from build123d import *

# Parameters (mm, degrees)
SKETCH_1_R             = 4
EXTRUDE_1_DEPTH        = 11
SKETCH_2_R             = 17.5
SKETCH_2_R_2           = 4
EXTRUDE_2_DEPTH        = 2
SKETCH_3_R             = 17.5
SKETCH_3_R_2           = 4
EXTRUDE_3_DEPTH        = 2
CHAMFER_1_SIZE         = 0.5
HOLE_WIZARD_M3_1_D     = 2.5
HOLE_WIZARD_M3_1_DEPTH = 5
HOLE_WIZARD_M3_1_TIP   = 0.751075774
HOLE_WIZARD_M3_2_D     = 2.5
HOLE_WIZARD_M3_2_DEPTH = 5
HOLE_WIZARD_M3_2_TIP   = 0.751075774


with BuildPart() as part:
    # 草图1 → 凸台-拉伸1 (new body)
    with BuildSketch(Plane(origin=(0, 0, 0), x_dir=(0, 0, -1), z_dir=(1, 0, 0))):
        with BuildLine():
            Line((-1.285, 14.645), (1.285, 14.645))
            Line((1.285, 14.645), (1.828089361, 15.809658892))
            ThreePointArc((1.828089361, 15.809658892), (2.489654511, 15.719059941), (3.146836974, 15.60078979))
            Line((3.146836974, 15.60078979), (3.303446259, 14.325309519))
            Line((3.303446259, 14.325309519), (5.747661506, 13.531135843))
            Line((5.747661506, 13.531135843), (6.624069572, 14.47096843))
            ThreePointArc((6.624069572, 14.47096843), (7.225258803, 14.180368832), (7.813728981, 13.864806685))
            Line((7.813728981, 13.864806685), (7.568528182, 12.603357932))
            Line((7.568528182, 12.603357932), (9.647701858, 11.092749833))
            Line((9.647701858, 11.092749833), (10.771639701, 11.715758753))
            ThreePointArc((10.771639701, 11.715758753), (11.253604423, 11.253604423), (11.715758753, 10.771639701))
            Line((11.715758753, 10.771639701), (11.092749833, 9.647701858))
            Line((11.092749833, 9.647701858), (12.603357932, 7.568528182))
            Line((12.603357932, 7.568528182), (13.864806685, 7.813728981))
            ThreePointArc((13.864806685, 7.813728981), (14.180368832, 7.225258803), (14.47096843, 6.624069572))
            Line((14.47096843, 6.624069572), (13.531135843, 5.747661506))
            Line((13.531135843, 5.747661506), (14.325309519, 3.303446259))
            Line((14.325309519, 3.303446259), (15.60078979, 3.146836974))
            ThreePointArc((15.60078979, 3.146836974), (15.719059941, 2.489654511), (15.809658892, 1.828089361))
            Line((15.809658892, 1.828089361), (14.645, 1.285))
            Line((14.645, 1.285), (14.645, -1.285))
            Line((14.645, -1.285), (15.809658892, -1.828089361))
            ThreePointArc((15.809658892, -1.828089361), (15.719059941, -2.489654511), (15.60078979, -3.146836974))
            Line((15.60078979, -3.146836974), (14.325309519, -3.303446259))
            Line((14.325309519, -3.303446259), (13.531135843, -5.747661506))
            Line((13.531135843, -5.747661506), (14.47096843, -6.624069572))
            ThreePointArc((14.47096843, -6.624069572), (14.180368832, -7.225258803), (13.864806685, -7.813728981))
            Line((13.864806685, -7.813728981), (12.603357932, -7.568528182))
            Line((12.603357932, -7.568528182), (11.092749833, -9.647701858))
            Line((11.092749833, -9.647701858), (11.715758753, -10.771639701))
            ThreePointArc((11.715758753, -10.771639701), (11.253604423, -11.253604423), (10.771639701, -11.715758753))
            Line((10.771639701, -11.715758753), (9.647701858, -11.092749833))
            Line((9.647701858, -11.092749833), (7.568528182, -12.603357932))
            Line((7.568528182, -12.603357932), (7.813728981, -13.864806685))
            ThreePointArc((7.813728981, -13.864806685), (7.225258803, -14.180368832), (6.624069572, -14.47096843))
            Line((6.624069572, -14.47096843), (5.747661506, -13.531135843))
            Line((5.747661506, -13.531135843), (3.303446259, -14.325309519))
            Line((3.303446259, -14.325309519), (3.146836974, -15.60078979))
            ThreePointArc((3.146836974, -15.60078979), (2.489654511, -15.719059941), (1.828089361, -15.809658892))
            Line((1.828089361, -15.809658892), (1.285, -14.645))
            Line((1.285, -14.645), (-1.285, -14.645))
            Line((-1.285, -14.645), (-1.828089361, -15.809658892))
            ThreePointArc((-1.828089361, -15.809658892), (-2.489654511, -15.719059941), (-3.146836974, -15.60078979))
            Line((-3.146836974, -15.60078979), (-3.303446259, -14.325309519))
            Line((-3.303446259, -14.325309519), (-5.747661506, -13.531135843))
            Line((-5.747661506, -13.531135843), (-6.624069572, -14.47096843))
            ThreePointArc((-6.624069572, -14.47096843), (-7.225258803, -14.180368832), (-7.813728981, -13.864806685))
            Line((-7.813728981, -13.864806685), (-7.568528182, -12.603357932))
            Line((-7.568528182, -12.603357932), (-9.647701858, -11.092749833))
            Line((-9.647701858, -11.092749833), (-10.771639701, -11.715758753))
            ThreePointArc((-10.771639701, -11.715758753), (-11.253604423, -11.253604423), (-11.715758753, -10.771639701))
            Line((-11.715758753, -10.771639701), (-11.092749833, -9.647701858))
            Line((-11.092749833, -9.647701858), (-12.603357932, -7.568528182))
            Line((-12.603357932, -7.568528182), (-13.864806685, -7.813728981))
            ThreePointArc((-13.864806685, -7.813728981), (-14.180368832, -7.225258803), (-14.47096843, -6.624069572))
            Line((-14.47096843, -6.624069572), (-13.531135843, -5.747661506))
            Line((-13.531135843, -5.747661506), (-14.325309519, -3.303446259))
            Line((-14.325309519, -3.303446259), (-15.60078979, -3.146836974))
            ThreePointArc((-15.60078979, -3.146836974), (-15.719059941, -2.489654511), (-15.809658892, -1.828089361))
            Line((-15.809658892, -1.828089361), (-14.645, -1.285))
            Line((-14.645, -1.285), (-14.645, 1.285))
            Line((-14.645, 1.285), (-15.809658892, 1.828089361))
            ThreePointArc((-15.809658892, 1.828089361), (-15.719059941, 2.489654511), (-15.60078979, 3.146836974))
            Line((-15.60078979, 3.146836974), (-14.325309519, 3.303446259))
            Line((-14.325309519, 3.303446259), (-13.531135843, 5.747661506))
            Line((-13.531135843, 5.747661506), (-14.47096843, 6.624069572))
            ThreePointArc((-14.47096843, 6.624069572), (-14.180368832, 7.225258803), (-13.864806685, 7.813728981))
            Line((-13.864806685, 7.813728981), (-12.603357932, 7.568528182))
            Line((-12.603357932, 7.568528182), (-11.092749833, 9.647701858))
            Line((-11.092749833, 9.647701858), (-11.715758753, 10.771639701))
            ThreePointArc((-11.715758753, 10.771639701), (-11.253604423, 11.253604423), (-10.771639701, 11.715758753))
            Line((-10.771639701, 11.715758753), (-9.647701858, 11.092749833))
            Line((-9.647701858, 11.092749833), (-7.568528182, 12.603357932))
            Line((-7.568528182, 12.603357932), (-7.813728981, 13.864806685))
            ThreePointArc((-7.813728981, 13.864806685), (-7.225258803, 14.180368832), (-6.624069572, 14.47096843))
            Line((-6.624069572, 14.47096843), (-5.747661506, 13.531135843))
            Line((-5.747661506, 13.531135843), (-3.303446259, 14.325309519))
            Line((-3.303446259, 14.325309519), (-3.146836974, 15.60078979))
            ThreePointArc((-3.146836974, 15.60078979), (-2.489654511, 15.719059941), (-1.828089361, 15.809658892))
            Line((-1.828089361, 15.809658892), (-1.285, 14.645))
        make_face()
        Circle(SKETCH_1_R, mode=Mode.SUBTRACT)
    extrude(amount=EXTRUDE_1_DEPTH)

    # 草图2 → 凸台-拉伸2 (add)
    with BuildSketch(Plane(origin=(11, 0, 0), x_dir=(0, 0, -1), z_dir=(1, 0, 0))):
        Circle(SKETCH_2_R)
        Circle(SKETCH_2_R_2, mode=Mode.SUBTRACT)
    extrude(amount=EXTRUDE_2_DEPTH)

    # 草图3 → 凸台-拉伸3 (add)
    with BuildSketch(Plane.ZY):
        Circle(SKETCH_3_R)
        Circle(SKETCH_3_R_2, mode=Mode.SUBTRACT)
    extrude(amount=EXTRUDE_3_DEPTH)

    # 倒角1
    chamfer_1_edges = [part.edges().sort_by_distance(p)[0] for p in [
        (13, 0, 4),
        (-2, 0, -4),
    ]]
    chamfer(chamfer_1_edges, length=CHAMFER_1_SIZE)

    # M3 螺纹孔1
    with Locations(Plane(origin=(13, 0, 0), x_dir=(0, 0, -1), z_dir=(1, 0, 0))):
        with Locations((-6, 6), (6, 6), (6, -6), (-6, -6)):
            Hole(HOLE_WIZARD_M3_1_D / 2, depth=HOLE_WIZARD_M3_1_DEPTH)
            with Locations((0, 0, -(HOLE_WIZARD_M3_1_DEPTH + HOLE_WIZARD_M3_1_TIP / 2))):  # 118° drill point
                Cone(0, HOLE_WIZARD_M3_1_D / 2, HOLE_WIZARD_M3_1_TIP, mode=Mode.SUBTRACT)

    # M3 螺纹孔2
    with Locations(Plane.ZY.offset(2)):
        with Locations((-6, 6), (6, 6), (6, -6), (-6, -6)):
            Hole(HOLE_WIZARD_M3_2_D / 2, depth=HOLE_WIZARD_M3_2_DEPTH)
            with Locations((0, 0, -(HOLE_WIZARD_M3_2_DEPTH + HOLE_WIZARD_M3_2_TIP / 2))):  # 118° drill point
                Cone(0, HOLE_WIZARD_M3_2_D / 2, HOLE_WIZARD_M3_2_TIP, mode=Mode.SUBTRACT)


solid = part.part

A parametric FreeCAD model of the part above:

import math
import FreeCAD as App
import Part
import Sketcher
Q = App.Units.Quantity


def edges_at(feature, points):
    """Names of the edges that pass closest to the given points."""
    edges = feature.Shape.Edges
    near = lambda p: min(range(len(edges)), key=lambda i: edges[i].distToShape(Part.Vertex(*p))[0])
    return sorted({f"Edge{near(p) + 1}" for p in points})

doc = App.newDocument("Part")
body = doc.addObject("PartDesign::Body", "Body")

sketch1 = body.newObject("Sketcher::SketchObject", "Sketch")
sketch1.AttachmentSupport = (doc.getObject("YZ_Plane"), [""])
sketch1.MapMode = "FlatFace"
sketch1.addGeometry(Part.LineSegment(App.Vector(14.6, -1.3, 0), App.Vector(14.6, 1.3, 0)), False)
sketch1.addGeometry(Part.LineSegment(App.Vector(14.6, 1.3, 0), App.Vector(15.8, 1.8, 0)), False)
sketch1.addGeometry(Part.ArcOfCircle(Part.Circle(App.Vector(0, 0, 0), App.Vector(0, 0, 1), 15.9), math.radians(6.6), math.radians(11.4)), False)
sketch1.addGeometry(Part.LineSegment(App.Vector(15.6, 3.1, 0), App.Vector(14.3, 3.3, 0)), False)
sketch1.addGeometry(Part.LineSegment(App.Vector(14.3, 3.3, 0), App.Vector(13.5, 5.7, 0)), False)
sketch1.addGeometry(Part.LineSegment(App.Vector(13.5, 5.7, 0), App.Vector(14.5, 6.6, 0)), False)
sketch1.addGeometry(Part.ArcOfCircle(Part.Circle(App.Vector(0, 0, 0), App.Vector(0, 0, 1), 15.9), math.radians(24.6), math.radians(29.4)), False)
sketch1.addGeometry(Part.LineSegment(App.Vector(13.9, 7.8, 0), App.Vector(12.6, 7.6, 0)), False)
sketch1.addGeometry(Part.LineSegment(App.Vector(12.6, 7.6, 0), App.Vector(11.1, 9.6, 0)), False)
sketch1.addGeometry(Part.LineSegment(App.Vector(11.1, 9.6, 0), App.Vector(11.7, 10.8, 0)), False)
sketch1.addGeometry(Part.ArcOfCircle(Part.Circle(App.Vector(0, 0, 0), App.Vector(0, 0, 1), 15.9), math.radians(42.6), math.radians(47.4)), False)
sketch1.addGeometry(Part.LineSegment(App.Vector(10.8, 11.7, 0), App.Vector(9.6, 11.1, 0)), False)
sketch1.addGeometry(Part.LineSegment(App.Vector(9.6, 11.1, 0), App.Vector(7.6, 12.6, 0)), False)
sketch1.addGeometry(Part.LineSegment(App.Vector(7.6, 12.6, 0), App.Vector(7.8, 13.9, 0)), False)
sketch1.addGeometry(Part.ArcOfCircle(Part.Circle(App.Vector(0, 0, 0), App.Vector(0, 0, 1), 15.9), math.radians(60.6), math.radians(65.4)), False)
sketch1.addGeometry(Part.LineSegment(App.Vector(6.6, 14.5, 0), App.Vector(5.7, 13.5, 0)), False)
sketch1.addGeometry(Part.LineSegment(App.Vector(5.7, 13.5, 0), App.Vector(3.3, 14.3, 0)), False)
sketch1.addGeometry(Part.LineSegment(App.Vector(3.3, 14.3, 0), App.Vector(3.1, 15.6, 0)), False)
sketch1.addGeometry(Part.ArcOfCircle(Part.Circle(App.Vector(0, 0, 0), App.Vector(0, 0, 1), 15.9), math.radians(78.6), math.radians(83.4)), False)
sketch1.addGeometry(Part.LineSegment(App.Vector(1.8, 15.8, 0), App.Vector(1.3, 14.6, 0)), False)
sketch1.addGeometry(Part.LineSegment(App.Vector(1.3, 14.6, 0), App.Vector(-1.3, 14.6, 0)), False)
sketch1.addGeometry(Part.LineSegment(App.Vector(-1.3, 14.6, 0), App.Vector(-1.8, 15.8, 0)), False)
sketch1.addGeometry(Part.ArcOfCircle(Part.Circle(App.Vector(0, 0, 0), App.Vector(0, 0, 1), 15.9), math.radians(96.6), math.radians(101.4)), False)
sketch1.addGeometry(Part.LineSegment(App.Vector(-3.1, 15.6, 0), App.Vector(-3.3, 14.3, 0)), False)
sketch1.addGeometry(Part.LineSegment(App.Vector(-3.3, 14.3, 0), App.Vector(-5.7, 13.5, 0)), False)
sketch1.addGeometry(Part.LineSegment(App.Vector(-5.7, 13.5, 0), App.Vector(-6.6, 14.5, 0)), False)
sketch1.addGeometry(Part.ArcOfCircle(Part.Circle(App.Vector(0, 0, 0), App.Vector(0, 0, 1), 15.9), math.radians(114.6), math.radians(119.4)), False)
sketch1.addGeometry(Part.LineSegment(App.Vector(-7.8, 13.9, 0), App.Vector(-7.6, 12.6, 0)), False)
sketch1.addGeometry(Part.LineSegment(App.Vector(-7.6, 12.6, 0), App.Vector(-9.6, 11.1, 0)), False)
sketch1.addGeometry(Part.LineSegment(App.Vector(-9.6, 11.1, 0), App.Vector(-10.8, 11.7, 0)), False)
sketch1.addGeometry(Part.ArcOfCircle(Part.Circle(App.Vector(0, 0, 0), App.Vector(0, 0, 1), 15.9), math.radians(132.6), math.radians(137.4)), False)
sketch1.addGeometry(Part.LineSegment(App.Vector(-11.7, 10.8, 0), App.Vector(-11.1, 9.6, 0)), False)
sketch1.addGeometry(Part.LineSegment(App.Vector(-11.1, 9.6, 0), App.Vector(-12.6, 7.6, 0)), False)
sketch1.addGeometry(Part.LineSegment(App.Vector(-12.6, 7.6, 0), App.Vector(-13.9, 7.8, 0)), False)
sketch1.addGeometry(Part.ArcOfCircle(Part.Circle(App.Vector(0, 0, 0), App.Vector(0, 0, 1), 15.9), math.radians(150.6), math.radians(155.4)), False)
sketch1.addGeometry(Part.LineSegment(App.Vector(-14.5, 6.6, 0), App.Vector(-13.5, 5.7, 0)), False)
sketch1.addGeometry(Part.LineSegment(App.Vector(-13.5, 5.7, 0), App.Vector(-14.3, 3.3, 0)), False)
sketch1.addGeometry(Part.LineSegment(App.Vector(-14.3, 3.3, 0), App.Vector(-15.6, 3.1, 0)), False)
sketch1.addGeometry(Part.ArcOfCircle(Part.Circle(App.Vector(0, 0, 0), App.Vector(0, 0, 1), 15.9), math.radians(168.6), math.radians(173.4)), False)
sketch1.addGeometry(Part.LineSegment(App.Vector(-15.8, 1.8, 0), App.Vector(-14.6, 1.3, 0)), False)
sketch1.addGeometry(Part.LineSegment(App.Vector(-14.6, 1.3, 0), App.Vector(-14.6, -1.3, 0)), False)
sketch1.addGeometry(Part.LineSegment(App.Vector(-14.6, -1.3, 0), App.Vector(-15.8, -1.8, 0)), False)
sketch1.addGeometry(Part.ArcOfCircle(Part.Circle(App.Vector(0, 0, 0), App.Vector(0, 0, 1), 15.9), math.radians(-173.4), math.radians(-168.6)), False)
sketch1.addGeometry(Part.LineSegment(App.Vector(-15.6, -3.1, 0), App.Vector(-14.3, -3.3, 0)), False)
sketch1.addGeometry(Part.LineSegment(App.Vector(-14.3, -3.3, 0), App.Vector(-13.5, -5.7, 0)), False)
sketch1.addGeometry(Part.LineSegment(App.Vector(-13.5, -5.7, 0), App.Vector(-14.5, -6.6, 0)), False)
sketch1.addGeometry(Part.ArcOfCircle(Part.Circle(App.Vector(0, 0, 0), App.Vector(0, 0, 1), 15.9), math.radians(-155.4), math.radians(-150.6)), False)
sketch1.addGeometry(Part.LineSegment(App.Vector(-13.9, -7.8, 0), App.Vector(-12.6, -7.6, 0)), False)
sketch1.addGeometry(Part.LineSegment(App.Vector(-12.6, -7.6, 0), App.Vector(-11.1, -9.6, 0)), False)
sketch1.addGeometry(Part.LineSegment(App.Vector(-11.1, -9.6, 0), App.Vector(-11.7, -10.8, 0)), False)
sketch1.addGeometry(Part.ArcOfCircle(Part.Circle(App.Vector(0, 0, 0), App.Vector(0, 0, 1), 15.9), math.radians(-137.4), math.radians(-132.6)), False)
sketch1.addGeometry(Part.LineSegment(App.Vector(-10.8, -11.7, 0), App.Vector(-9.6, -11.1, 0)), False)
sketch1.addGeometry(Part.LineSegment(App.Vector(-9.6, -11.1, 0), App.Vector(-7.6, -12.6, 0)), False)
sketch1.addGeometry(Part.LineSegment(App.Vector(-7.6, -12.6, 0), App.Vector(-7.8, -13.9, 0)), False)
sketch1.addGeometry(Part.ArcOfCircle(Part.Circle(App.Vector(0, 0, 0), App.Vector(0, 0, 1), 15.9), math.radians(-119.4), math.radians(-114.6)), False)
sketch1.addGeometry(Part.LineSegment(App.Vector(-6.6, -14.5, 0), App.Vector(-5.7, -13.5, 0)), False)
sketch1.addGeometry(Part.LineSegment(App.Vector(-5.7, -13.5, 0), App.Vector(-3.3, -14.3, 0)), False)
sketch1.addGeometry(Part.LineSegment(App.Vector(-3.3, -14.3, 0), App.Vector(-3.1, -15.6, 0)), False)
sketch1.addGeometry(Part.ArcOfCircle(Part.Circle(App.Vector(0, 0, 0), App.Vector(0, 0, 1), 15.9), math.radians(-101.4), math.radians(-96.6)), False)
sketch1.addGeometry(Part.LineSegment(App.Vector(-1.8, -15.8, 0), App.Vector(-1.3, -14.6, 0)), False)
sketch1.addGeometry(Part.LineSegment(App.Vector(-1.3, -14.6, 0), App.Vector(1.3, -14.6, 0)), False)
sketch1.addGeometry(Part.LineSegment(App.Vector(1.3, -14.6, 0), App.Vector(1.8, -15.8, 0)), False)
sketch1.addGeometry(Part.ArcOfCircle(Part.Circle(App.Vector(0, 0, 0), App.Vector(0, 0, 1), 15.9), math.radians(-83.4), math.radians(-78.6)), False)
sketch1.addGeometry(Part.LineSegment(App.Vector(3.1, -15.6, 0), App.Vector(3.3, -14.3, 0)), False)
sketch1.addGeometry(Part.LineSegment(App.Vector(3.3, -14.3, 0), App.Vector(5.7, -13.5, 0)), False)
sketch1.addGeometry(Part.LineSegment(App.Vector(5.7, -13.5, 0), App.Vector(6.6, -14.5, 0)), False)
sketch1.addGeometry(Part.ArcOfCircle(Part.Circle(App.Vector(0, 0, 0), App.Vector(0, 0, 1), 15.9), math.radians(-65.4), math.radians(-60.6)), False)
sketch1.addGeometry(Part.LineSegment(App.Vector(7.8, -13.9, 0), App.Vector(7.6, -12.6, 0)), False)
sketch1.addGeometry(Part.LineSegment(App.Vector(7.6, -12.6, 0), App.Vector(9.6, -11.1, 0)), False)
sketch1.addGeometry(Part.LineSegment(App.Vector(9.6, -11.1, 0), App.Vector(10.8, -11.7, 0)), False)
sketch1.addGeometry(Part.ArcOfCircle(Part.Circle(App.Vector(0, 0, 0), App.Vector(0, 0, 1), 15.9), math.radians(-47.4), math.radians(-42.6)), False)
sketch1.addGeometry(Part.LineSegment(App.Vector(11.7, -10.8, 0), App.Vector(11.1, -9.6, 0)), False)
sketch1.addGeometry(Part.LineSegment(App.Vector(11.1, -9.6, 0), App.Vector(12.6, -7.6, 0)), False)
sketch1.addGeometry(Part.LineSegment(App.Vector(12.6, -7.6, 0), App.Vector(13.9, -7.8, 0)), False)
sketch1.addGeometry(Part.ArcOfCircle(Part.Circle(App.Vector(0, 0, 0), App.Vector(0, 0, 1), 15.9), math.radians(-29.4), math.radians(-24.6)), False)
sketch1.addGeometry(Part.LineSegment(App.Vector(14.5, -6.6, 0), App.Vector(13.5, -5.7, 0)), False)
sketch1.addGeometry(Part.LineSegment(App.Vector(13.5, -5.7, 0), App.Vector(14.3, -3.3, 0)), False)
sketch1.addGeometry(Part.LineSegment(App.Vector(14.3, -3.3, 0), App.Vector(15.6, -3.1, 0)), False)
sketch1.addGeometry(Part.ArcOfCircle(Part.Circle(App.Vector(0, 0, 0), App.Vector(0, 0, 1), 15.9), math.radians(-11.4), math.radians(-6.6)), False)
sketch1.addGeometry(Part.LineSegment(App.Vector(15.8, -1.8, 0), App.Vector(14.6, -1.3, 0)), False)
sketch1.addGeometry(Part.Circle(App.Vector(0, 0, 0), App.Vector(0, 0, 1), 4), False)
sketch1.addConstraint(Sketcher.Constraint("Coincident", 0, 2, 1, 1))
sketch1.addConstraint(Sketcher.Constraint("Coincident", 1, 2, 2, 1))
sketch1.addConstraint(Sketcher.Constraint("Coincident", 2, 2, 3, 1))
sketch1.addConstraint(Sketcher.Constraint("Coincident", 3, 2, 4, 1))
sketch1.addConstraint(Sketcher.Constraint("Coincident", 4, 2, 5, 1))
sketch1.addConstraint(Sketcher.Constraint("Coincident", 5, 2, 6, 1))
sketch1.addConstraint(Sketcher.Constraint("Coincident", 6, 2, 7, 1))
sketch1.addConstraint(Sketcher.Constraint("Coincident", 7, 2, 8, 1))
sketch1.addConstraint(Sketcher.Constraint("Coincident", 8, 2, 9, 1))
sketch1.addConstraint(Sketcher.Constraint("Coincident", 9, 2, 10, 1))
sketch1.addConstraint(Sketcher.Constraint("Coincident", 10, 2, 11, 1))
sketch1.addConstraint(Sketcher.Constraint("Coincident", 11, 2, 12, 1))
sketch1.addConstraint(Sketcher.Constraint("Coincident", 12, 2, 13, 1))
sketch1.addConstraint(Sketcher.Constraint("Coincident", 13, 2, 14, 1))
sketch1.addConstraint(Sketcher.Constraint("Coincident", 14, 2, 15, 1))
sketch1.addConstraint(Sketcher.Constraint("Coincident", 15, 2, 16, 1))
sketch1.addConstraint(Sketcher.Constraint("Coincident", 16, 2, 17, 1))
sketch1.addConstraint(Sketcher.Constraint("Coincident", 17, 2, 18, 1))
sketch1.addConstraint(Sketcher.Constraint("Coincident", 18, 2, 19, 1))
sketch1.addConstraint(Sketcher.Constraint("Coincident", 19, 2, 20, 1))
sketch1.addConstraint(Sketcher.Constraint("Coincident", 20, 2, 21, 1))
sketch1.addConstraint(Sketcher.Constraint("Coincident", 21, 2, 22, 1))
sketch1.addConstraint(Sketcher.Constraint("Coincident", 22, 2, 23, 1))
sketch1.addConstraint(Sketcher.Constraint("Coincident", 23, 2, 24, 1))
sketch1.addConstraint(Sketcher.Constraint("Coincident", 24, 2, 25, 1))
sketch1.addConstraint(Sketcher.Constraint("Coincident", 25, 2, 26, 1))
sketch1.addConstraint(Sketcher.Constraint("Coincident", 26, 2, 27, 1))
sketch1.addConstraint(Sketcher.Constraint("Coincident", 27, 2, 28, 1))
sketch1.addConstraint(Sketcher.Constraint("Coincident", 28, 2, 29, 1))
sketch1.addConstraint(Sketcher.Constraint("Coincident", 29, 2, 30, 1))
sketch1.addConstraint(Sketcher.Constraint("Coincident", 30, 2, 31, 1))
sketch1.addConstraint(Sketcher.Constraint("Coincident", 31, 2, 32, 1))
sketch1.addConstraint(Sketcher.Constraint("Coincident", 32, 2, 33, 1))
sketch1.addConstraint(Sketcher.Constraint("Coincident", 33, 2, 34, 1))
sketch1.addConstraint(Sketcher.Constraint("Coincident", 34, 2, 35, 1))
sketch1.addConstraint(Sketcher.Constraint("Coincident", 35, 2, 36, 1))
sketch1.addConstraint(Sketcher.Constraint("Coincident", 36, 2, 37, 1))
sketch1.addConstraint(Sketcher.Constraint("Coincident", 37, 2, 38, 1))
sketch1.addConstraint(Sketcher.Constraint("Coincident", 38, 2, 39, 1))
sketch1.addConstraint(Sketcher.Constraint("Coincident", 39, 2, 40, 1))
sketch1.addConstraint(Sketcher.Constraint("Coincident", 40, 2, 41, 1))
sketch1.addConstraint(Sketcher.Constraint("Coincident", 41, 2, 42, 1))
sketch1.addConstraint(Sketcher.Constraint("Coincident", 42, 2, 43, 1))
sketch1.addConstraint(Sketcher.Constraint("Coincident", 43, 2, 44, 1))
sketch1.addConstraint(Sketcher.Constraint("Coincident", 44, 2, 45, 1))
sketch1.addConstraint(Sketcher.Constraint("Coincident", 45, 2, 46, 1))
sketch1.addConstraint(Sketcher.Constraint("Coincident", 46, 2, 47, 1))
sketch1.addConstraint(Sketcher.Constraint("Coincident", 47, 2, 48, 1))
sketch1.addConstraint(Sketcher.Constraint("Coincident", 48, 2, 49, 1))
sketch1.addConstraint(Sketcher.Constraint("Coincident", 49, 2, 50, 1))
sketch1.addConstraint(Sketcher.Constraint("Coincident", 50, 2, 51, 1))
sketch1.addConstraint(Sketcher.Constraint("Coincident", 51, 2, 52, 1))
sketch1.addConstraint(Sketcher.Constraint("Coincident", 52, 2, 53, 1))
sketch1.addConstraint(Sketcher.Constraint("Coincident", 53, 2, 54, 1))
sketch1.addConstraint(Sketcher.Constraint("Coincident", 54, 2, 55, 1))
sketch1.addConstraint(Sketcher.Constraint("Coincident", 55, 2, 56, 1))
sketch1.addConstraint(Sketcher.Constraint("Coincident", 56, 2, 57, 1))
sketch1.addConstraint(Sketcher.Constraint("Coincident", 57, 2, 58, 1))
sketch1.addConstraint(Sketcher.Constraint("Coincident", 58, 2, 59, 1))
sketch1.addConstraint(Sketcher.Constraint("Coincident", 59, 2, 60, 1))
sketch1.addConstraint(Sketcher.Constraint("Coincident", 60, 2, 61, 1))
sketch1.addConstraint(Sketcher.Constraint("Coincident", 61, 2, 62, 1))
sketch1.addConstraint(Sketcher.Constraint("Coincident", 62, 2, 63, 1))
sketch1.addConstraint(Sketcher.Constraint("Coincident", 63, 2, 64, 1))
sketch1.addConstraint(Sketcher.Constraint("Coincident", 64, 2, 65, 1))
sketch1.addConstraint(Sketcher.Constraint("Coincident", 65, 2, 66, 1))
sketch1.addConstraint(Sketcher.Constraint("Coincident", 66, 2, 67, 1))
sketch1.addConstraint(Sketcher.Constraint("Coincident", 67, 2, 68, 1))
sketch1.addConstraint(Sketcher.Constraint("Coincident", 68, 2, 69, 1))
sketch1.addConstraint(Sketcher.Constraint("Coincident", 69, 2, 70, 1))
sketch1.addConstraint(Sketcher.Constraint("Coincident", 70, 2, 71, 1))
sketch1.addConstraint(Sketcher.Constraint("Coincident", 71, 2, 72, 1))
sketch1.addConstraint(Sketcher.Constraint("Coincident", 72, 2, 73, 1))
sketch1.addConstraint(Sketcher.Constraint("Coincident", 73, 2, 74, 1))
sketch1.addConstraint(Sketcher.Constraint("Coincident", 74, 2, 75, 1))
sketch1.addConstraint(Sketcher.Constraint("Coincident", 75, 2, 76, 1))
sketch1.addConstraint(Sketcher.Constraint("Coincident", 76, 2, 77, 1))
sketch1.addConstraint(Sketcher.Constraint("Coincident", 77, 2, 78, 1))
sketch1.addConstraint(Sketcher.Constraint("Coincident", 78, 2, 79, 1))
sketch1.addConstraint(Sketcher.Constraint("Coincident", 79, 2, 0, 1))
sketch1.addConstraint(Sketcher.Constraint("Vertical", 0))
sketch1.addConstraint(Sketcher.Constraint("Horizontal", 20))
sketch1.addConstraint(Sketcher.Constraint("Vertical", 40))
sketch1.addConstraint(Sketcher.Constraint("Horizontal", 60))
sketch1.addConstraint(Sketcher.Constraint("Coincident", 2, 3, -1, 1))
sketch1.addConstraint(Sketcher.Constraint("Coincident", 6, 3, -1, 1))
sketch1.addConstraint(Sketcher.Constraint("Coincident", 10, 3, -1, 1))
sketch1.addConstraint(Sketcher.Constraint("Coincident", 14, 3, -1, 1))
sketch1.addConstraint(Sketcher.Constraint("Coincident", 18, 3, -1, 1))
sketch1.addConstraint(Sketcher.Constraint("Coincident", 22, 3, -1, 1))
sketch1.addConstraint(Sketcher.Constraint("Coincident", 26, 3, -1, 1))
sketch1.addConstraint(Sketcher.Constraint("Coincident", 30, 3, -1, 1))
sketch1.addConstraint(Sketcher.Constraint("Coincident", 34, 3, -1, 1))
sketch1.addConstraint(Sketcher.Constraint("Coincident", 38, 3, -1, 1))
sketch1.addConstraint(Sketcher.Constraint("Coincident", 42, 3, -1, 1))
sketch1.addConstraint(Sketcher.Constraint("Coincident", 46, 3, -1, 1))
sketch1.addConstraint(Sketcher.Constraint("Coincident", 50, 3, -1, 1))
sketch1.addConstraint(Sketcher.Constraint("Coincident", 54, 3, -1, 1))
sketch1.addConstraint(Sketcher.Constraint("Coincident", 58, 3, -1, 1))
sketch1.addConstraint(Sketcher.Constraint("Coincident", 62, 3, -1, 1))
sketch1.addConstraint(Sketcher.Constraint("Coincident", 66, 3, -1, 1))
sketch1.addConstraint(Sketcher.Constraint("Coincident", 70, 3, -1, 1))
sketch1.addConstraint(Sketcher.Constraint("Coincident", 74, 3, -1, 1))
sketch1.addConstraint(Sketcher.Constraint("Coincident", 78, 3, -1, 1))
sketch1.addConstraint(Sketcher.Constraint("Coincident", 80, 3, -1, 1))
sketch1.addConstraint(Sketcher.Constraint("Equal", 2, 6))
sketch1.addConstraint(Sketcher.Constraint("Equal", 6, 10))
sketch1.addConstraint(Sketcher.Constraint("Equal", 10, 14))
sketch1.addConstraint(Sketcher.Constraint("Equal", 14, 18))
sketch1.addConstraint(Sketcher.Constraint("Equal", 18, 22))
sketch1.addConstraint(Sketcher.Constraint("Equal", 22, 26))
sketch1.addConstraint(Sketcher.Constraint("Equal", 26, 30))
sketch1.addConstraint(Sketcher.Constraint("Equal", 30, 34))
sketch1.addConstraint(Sketcher.Constraint("Equal", 34, 38))
sketch1.addConstraint(Sketcher.Constraint("Equal", 38, 42))
sketch1.addConstraint(Sketcher.Constraint("Equal", 42, 46))
sketch1.addConstraint(Sketcher.Constraint("Equal", 46, 50))
sketch1.addConstraint(Sketcher.Constraint("Equal", 50, 54))
sketch1.addConstraint(Sketcher.Constraint("Equal", 54, 58))
sketch1.addConstraint(Sketcher.Constraint("Equal", 58, 62))
sketch1.addConstraint(Sketcher.Constraint("Equal", 62, 66))
sketch1.addConstraint(Sketcher.Constraint("Equal", 66, 70))
sketch1.addConstraint(Sketcher.Constraint("Equal", 70, 74))
sketch1.addConstraint(Sketcher.Constraint("Equal", 74, 78))
sketch1.addConstraint(Sketcher.Constraint("Symmetric", 0, 2, 40, 2, -1, 1))
sketch1.addConstraint(Sketcher.Constraint("Symmetric", 3, 2, 43, 2, -1, 1))
sketch1.addConstraint(Sketcher.Constraint("Symmetric", 4, 2, 44, 2, -1, 1))
sketch1.addConstraint(Sketcher.Constraint("Symmetric", 7, 2, 47, 2, -1, 1))
sketch1.addConstraint(Sketcher.Constraint("Symmetric", 8, 2, 48, 2, -1, 1))
sketch1.addConstraint(Sketcher.Constraint("Symmetric", 11, 2, 51, 2, -1, 1))
sketch1.addConstraint(Sketcher.Constraint("Symmetric", 12, 2, 52, 2, -1, 1))
sketch1.addConstraint(Sketcher.Constraint("Symmetric", 15, 2, 55, 2, -1, 1))
sketch1.addConstraint(Sketcher.Constraint("Symmetric", 16, 2, 56, 2, -1, 1))
sketch1.addConstraint(Sketcher.Constraint("Symmetric", 19, 2, 59, 2, -1, 1))
sketch1.addConstraint(Sketcher.Constraint("Symmetric", 23, 2, 63, 2, -1, 1))
sketch1.addConstraint(Sketcher.Constraint("Symmetric", 24, 2, 64, 2, -1, 1))
sketch1.addConstraint(Sketcher.Constraint("Symmetric", 27, 2, 67, 2, -1, 1))
sketch1.addConstraint(Sketcher.Constraint("Symmetric", 28, 2, 68, 2, -1, 1))
sketch1.addConstraint(Sketcher.Constraint("Symmetric", 31, 2, 71, 2, -1, 1))
sketch1.addConstraint(Sketcher.Constraint("Symmetric", 32, 2, 72, 2, -1, 1))
sketch1.addConstraint(Sketcher.Constraint("Symmetric", 35, 2, 75, 2, -1, 1))
sketch1.addConstraint(Sketcher.Constraint("Symmetric", 36, 2, 76, 2, -1, 1))
sketch1.addConstraint(Sketcher.Constraint("Symmetric", 16, 2, 23, 2, -2))
sketch1.addConstraint(Sketcher.Constraint("Symmetric", 15, 2, 24, 2, -2))
sketch1.addConstraint(Sketcher.Constraint("Symmetric", 12, 2, 27, 2, -2))
sketch1.addConstraint(Sketcher.Constraint("Symmetric", 11, 2, 28, 2, -2))
sketch1.addConstraint(Sketcher.Constraint("Symmetric", 8, 2, 31, 2, -2))
sketch1.addConstraint(Sketcher.Constraint("Symmetric", 7, 2, 32, 2, -2))
sketch1.addConstraint(Sketcher.Constraint("Symmetric", 4, 2, 35, 2, -2))
sketch1.addConstraint(Sketcher.Constraint("Symmetric", 3, 2, 36, 2, -2))
sketch1.addConstraint(Sketcher.Constraint("Perpendicular", 1, 21))
sketch1.addConstraint(Sketcher.Constraint("Perpendicular", 3, 23))
sketch1.addConstraint(Sketcher.Constraint("Perpendicular", 4, 24))
sketch1.addConstraint(Sketcher.Constraint("Perpendicular", 5, 25))
sketch1.addConstraint(Sketcher.Constraint("Perpendicular", 7, 27))
sketch1.addConstraint(Sketcher.Constraint("Perpendicular", 8, 28))
sketch1.addConstraint(Sketcher.Constraint("Perpendicular", 9, 29))
sketch1.addConstraint(Sketcher.Constraint("Perpendicular", 11, 31))
sketch1.addConstraint(Sketcher.Constraint("Perpendicular", 13, 33))
sketch1.addConstraint(Sketcher.Constraint("Perpendicular", 15, 35))
sketch1.addConstraint(Sketcher.Constraint("Perpendicular", 17, 37))
sketch1.addConstraint(Sketcher.Constraint("Perpendicular", 19, 39))
sketch1.addConstraint(Sketcher.Constraint("Perpendicular", 21, 41))
sketch1.addConstraint(Sketcher.Constraint("Perpendicular", 23, 43))
sketch1.addConstraint(Sketcher.Constraint("Perpendicular", 25, 45))
sketch1.addConstraint(Sketcher.Constraint("Perpendicular", 27, 47))
sketch1.addConstraint(Sketcher.Constraint("Perpendicular", 29, 49))
sketch1.addConstraint(Sketcher.Constraint("Perpendicular", 31, 51))
sketch1.addConstraint(Sketcher.Constraint("Perpendicular", 33, 53))
sketch1.addConstraint(Sketcher.Constraint("Perpendicular", 35, 55))
sketch1.addConstraint(Sketcher.Constraint("Perpendicular", 37, 57))
sketch1.addConstraint(Sketcher.Constraint("Perpendicular", 39, 59))
sketch1.addConstraint(Sketcher.Constraint("Perpendicular", 41, 61))
sketch1.addConstraint(Sketcher.Constraint("Perpendicular", 43, 63))
sketch1.addConstraint(Sketcher.Constraint("Perpendicular", 45, 65))
sketch1.addConstraint(Sketcher.Constraint("Perpendicular", 47, 67))
sketch1.addConstraint(Sketcher.Constraint("Perpendicular", 49, 69))
sketch1.addConstraint(Sketcher.Constraint("Perpendicular", 51, 71))
sketch1.addConstraint(Sketcher.Constraint("Perpendicular", 53, 73))
sketch1.addConstraint(Sketcher.Constraint("Perpendicular", 55, 75))
sketch1.addConstraint(Sketcher.Constraint("Perpendicular", 57, 77))
sketch1.addConstraint(Sketcher.Constraint("Perpendicular", 59, 79))
sketch1.addConstraint(Sketcher.Constraint("Horizontal", 18, 2, 21, 2))
sketch1.addConstraint(Sketcher.Constraint("Horizontal", 17, 2, 22, 2))
sketch1.addConstraint(Sketcher.Constraint("Horizontal", 14, 2, 25, 2))
sketch1.addConstraint(Sketcher.Constraint("Horizontal", 13, 2, 26, 2))
sketch1.addConstraint(Sketcher.Constraint("Horizontal", 10, 2, 29, 2))
sketch1.addConstraint(Sketcher.Constraint("Horizontal", 1, 2, 38, 2))
sketch1.addConstraint(Sketcher.Constraint("Horizontal", 0, 2, 39, 2))
sketch1.addConstraint(Sketcher.Constraint("Horizontal", 58, 2, 61, 2))
sketch1.addConstraint(Sketcher.Constraint("Horizontal", 41, 2, 78, 2))
sketch1.addConstraint(Sketcher.Constraint("Equal", 60, 0))
sketch1.addConstraint(Sketcher.Constraint("Equal", 1, 3))
sketch1.addConstraint(Sketcher.Constraint("Equal", 3, 5))
sketch1.addConstraint(Sketcher.Constraint("Equal", 5, 7))
sketch1.addConstraint(Sketcher.Constraint("Equal", 4, 8))
sketch1.addConstraint(Sketcher.Constraint("Equal", 7, 9))
sketch1.addConstraint(Sketcher.Constraint("Equal", 9, 11))
sketch1.addConstraint(Sketcher.Constraint("Equal", 8, 12))
sketch1.addConstraint(Sketcher.Constraint("Equal", 11, 13))
sketch1.addConstraint(Sketcher.Constraint("Equal", 13, 15))
sketch1.addConstraint(Sketcher.Constraint("Equal", 12, 16))
sketch1.addConstraint(Sketcher.Constraint("Equal", 15, 17))
sketch1.addConstraint(Sketcher.Constraint("Equal", 17, 19))
sketch1.addConstraint(Sketcher.Constraint("Diameter", 80, 8.0))
sketch1.addConstraint(Sketcher.Constraint("Angle", 1, Q("25 deg")))
sketch1.addConstraint(Sketcher.Constraint("Angle", 3, Q("173 deg")))
sketch1.addConstraint(Sketcher.Constraint("Angle", 4, Q("108 deg")))
sketch1.addConstraint(Sketcher.Constraint("Angle", 5, Q("43 deg")))
sketch1.addConstraint(Sketcher.Constraint("Angle", 7, Q("-169 deg")))
sketch1.addConstraint(Sketcher.Constraint("Angle", 8, Q("126 deg")))
sketch1.addConstraint(Sketcher.Constraint("Angle", 9, Q("61 deg")))
sketch1.addConstraint(Sketcher.Constraint("Radius", 2, 15.915))
sketch1.addConstraint(Sketcher.Constraint("DistanceX", 20, 2, 20, 1, 2.57))
sketch1.addConstraint(Sketcher.Constraint("Distance", 4, 2.57))
sketch1.addConstraint(Sketcher.Constraint("DistanceX", -1, 1, 0, 2, 14.645))
pad1 = body.newObject("PartDesign::Pad", "Pad")
pad1.Profile = sketch1
pad1.Length = 11

sketch2 = body.newObject("Sketcher::SketchObject", "Sketch001")
sketch2.AttachmentSupport = (doc.getObject("YZ_Plane"), [""])
sketch2.MapMode = "FlatFace"
sketch2.AttachmentOffset = App.Placement(App.Vector(0, 0, 11), App.Rotation())
sketch2.addGeometry(Part.Circle(App.Vector(0, 0, 0), App.Vector(0, 0, 1), 17.5), False)
sketch2.addGeometry(Part.Circle(App.Vector(0, 0, 0), App.Vector(0, 0, 1), 4), False)
sketch2.addConstraint(Sketcher.Constraint("Coincident", 0, 3, -1, 1))
sketch2.addConstraint(Sketcher.Constraint("Coincident", 1, 3, -1, 1))
sketch2.addConstraint(Sketcher.Constraint("Diameter", 0, 35.0))
sketch2.addConstraint(Sketcher.Constraint("Diameter", 1, 8.0))
pad2 = body.newObject("PartDesign::Pad", "Pad001")
pad2.Profile = sketch2
pad2.Length = 2

sketch3 = body.newObject("Sketcher::SketchObject", "Sketch002")
sketch3.AttachmentSupport = (doc.getObject("YZ_Plane"), [""])
sketch3.MapMode = "FlatFace"
sketch3.addGeometry(Part.Circle(App.Vector(0, 0, 0), App.Vector(0, 0, 1), 17.5), False)
sketch3.addGeometry(Part.Circle(App.Vector(0, 0, 0), App.Vector(0, 0, 1), 4), False)
sketch3.addConstraint(Sketcher.Constraint("Coincident", 0, 3, -1, 1))
sketch3.addConstraint(Sketcher.Constraint("Coincident", 1, 3, -1, 1))
sketch3.addConstraint(Sketcher.Constraint("Diameter", 0, 35.0))
sketch3.addConstraint(Sketcher.Constraint("Diameter", 1, 8.0))
pad3 = body.newObject("PartDesign::Pad", "Pad002")
pad3.Profile = sketch3
pad3.Length = 2
pad3.Reversed = True
doc.recompute()

chamfer = body.newObject("PartDesign::Chamfer", "Chamfer")
chamfer.Base = (pad3, edges_at(pad3, [(13, 0, 4), (-2, 0, -4)]))
chamfer.Size = 0.5

sketch4 = body.newObject("Sketcher::SketchObject", "Sketch003")
sketch4.AttachmentSupport = (doc.getObject("YZ_Plane"), [""])
sketch4.MapMode = "FlatFace"
sketch4.AttachmentOffset = App.Placement(App.Vector(0, 0, 13), App.Rotation())
sketch4.addGeometry(Part.Circle(App.Vector(6, 6, 0), App.Vector(0, 0, 1), 1.2), False)
sketch4.addGeometry(Part.Circle(App.Vector(6, -6, 0), App.Vector(0, 0, 1), 1.2), False)
sketch4.addGeometry(Part.Circle(App.Vector(-6, -6, 0), App.Vector(0, 0, 1), 1.2), False)
sketch4.addGeometry(Part.Circle(App.Vector(-6, 6, 0), App.Vector(0, 0, 1), 1.2), False)
sketch4.addConstraint(Sketcher.Constraint("Equal", 0, 1))
sketch4.addConstraint(Sketcher.Constraint("Equal", 1, 2))
sketch4.addConstraint(Sketcher.Constraint("Equal", 2, 3))
sketch4.addConstraint(Sketcher.Constraint("Symmetric", 0, 3, 2, 3, -1, 1))
sketch4.addConstraint(Sketcher.Constraint("Symmetric", 1, 3, 3, 3, -1, 1))
sketch4.addConstraint(Sketcher.Constraint("Symmetric", 1, 3, 2, 3, -2))
sketch4.addConstraint(Sketcher.Constraint("Diameter", 0, 2.5))
sketch4.addConstraint(Sketcher.Constraint("DistanceX", -1, 1, 0, 3, 6.0))
sketch4.addConstraint(Sketcher.Constraint("DistanceY", -1, 1, 0, 3, 6.0))
doc.recompute()
hole = body.newObject("PartDesign::Hole", "Hole")
hole.Profile = sketch4
hole.ThreadType = "None"
hole.Diameter = 2.5
hole.DepthType = "Dimension"
hole.Depth = 5
hole.DrillPoint = "Angled"
hole.DrillPointAngle = 118

sketch5 = body.newObject("Sketcher::SketchObject", "Sketch004")
sketch5.AttachmentSupport = (doc.getObject("YZ_Plane"), [""])
sketch5.MapMode = "FlatFace"
sketch5.AttachmentOffset = App.Placement(App.Vector(0, 0, -2), App.Rotation())
sketch5.addGeometry(Part.Circle(App.Vector(6, -6, 0), App.Vector(0, 0, 1), 1.2), False)
sketch5.addGeometry(Part.Circle(App.Vector(6, 6, 0), App.Vector(0, 0, 1), 1.2), False)
sketch5.addGeometry(Part.Circle(App.Vector(-6, 6, 0), App.Vector(0, 0, 1), 1.2), False)
sketch5.addGeometry(Part.Circle(App.Vector(-6, -6, 0), App.Vector(0, 0, 1), 1.2), False)
sketch5.addConstraint(Sketcher.Constraint("Equal", 0, 1))
sketch5.addConstraint(Sketcher.Constraint("Equal", 1, 2))
sketch5.addConstraint(Sketcher.Constraint("Equal", 2, 3))
sketch5.addConstraint(Sketcher.Constraint("Symmetric", 0, 3, 2, 3, -1, 1))
sketch5.addConstraint(Sketcher.Constraint("Symmetric", 1, 3, 3, 3, -1, 1))
sketch5.addConstraint(Sketcher.Constraint("Symmetric", 1, 3, 2, 3, -2))
sketch5.addConstraint(Sketcher.Constraint("Diameter", 0, 2.5))
sketch5.addConstraint(Sketcher.Constraint("DistanceX", -1, 1, 0, 3, 6.0))
sketch5.addConstraint(Sketcher.Constraint("DistanceY", 0, 3, -1, 1, 6.0))
doc.recompute()
hole2 = body.newObject("PartDesign::Hole", "Hole001")
hole2.Profile = sketch5
hole2.ThreadType = "None"
hole2.Diameter = 2.5
hole2.DepthType = "Dimension"
hole2.Depth = 5
hole2.DrillPoint = "Angled"
hole2.DrillPointAngle = 118
hole2.Reversed = True

doc.recompute()
